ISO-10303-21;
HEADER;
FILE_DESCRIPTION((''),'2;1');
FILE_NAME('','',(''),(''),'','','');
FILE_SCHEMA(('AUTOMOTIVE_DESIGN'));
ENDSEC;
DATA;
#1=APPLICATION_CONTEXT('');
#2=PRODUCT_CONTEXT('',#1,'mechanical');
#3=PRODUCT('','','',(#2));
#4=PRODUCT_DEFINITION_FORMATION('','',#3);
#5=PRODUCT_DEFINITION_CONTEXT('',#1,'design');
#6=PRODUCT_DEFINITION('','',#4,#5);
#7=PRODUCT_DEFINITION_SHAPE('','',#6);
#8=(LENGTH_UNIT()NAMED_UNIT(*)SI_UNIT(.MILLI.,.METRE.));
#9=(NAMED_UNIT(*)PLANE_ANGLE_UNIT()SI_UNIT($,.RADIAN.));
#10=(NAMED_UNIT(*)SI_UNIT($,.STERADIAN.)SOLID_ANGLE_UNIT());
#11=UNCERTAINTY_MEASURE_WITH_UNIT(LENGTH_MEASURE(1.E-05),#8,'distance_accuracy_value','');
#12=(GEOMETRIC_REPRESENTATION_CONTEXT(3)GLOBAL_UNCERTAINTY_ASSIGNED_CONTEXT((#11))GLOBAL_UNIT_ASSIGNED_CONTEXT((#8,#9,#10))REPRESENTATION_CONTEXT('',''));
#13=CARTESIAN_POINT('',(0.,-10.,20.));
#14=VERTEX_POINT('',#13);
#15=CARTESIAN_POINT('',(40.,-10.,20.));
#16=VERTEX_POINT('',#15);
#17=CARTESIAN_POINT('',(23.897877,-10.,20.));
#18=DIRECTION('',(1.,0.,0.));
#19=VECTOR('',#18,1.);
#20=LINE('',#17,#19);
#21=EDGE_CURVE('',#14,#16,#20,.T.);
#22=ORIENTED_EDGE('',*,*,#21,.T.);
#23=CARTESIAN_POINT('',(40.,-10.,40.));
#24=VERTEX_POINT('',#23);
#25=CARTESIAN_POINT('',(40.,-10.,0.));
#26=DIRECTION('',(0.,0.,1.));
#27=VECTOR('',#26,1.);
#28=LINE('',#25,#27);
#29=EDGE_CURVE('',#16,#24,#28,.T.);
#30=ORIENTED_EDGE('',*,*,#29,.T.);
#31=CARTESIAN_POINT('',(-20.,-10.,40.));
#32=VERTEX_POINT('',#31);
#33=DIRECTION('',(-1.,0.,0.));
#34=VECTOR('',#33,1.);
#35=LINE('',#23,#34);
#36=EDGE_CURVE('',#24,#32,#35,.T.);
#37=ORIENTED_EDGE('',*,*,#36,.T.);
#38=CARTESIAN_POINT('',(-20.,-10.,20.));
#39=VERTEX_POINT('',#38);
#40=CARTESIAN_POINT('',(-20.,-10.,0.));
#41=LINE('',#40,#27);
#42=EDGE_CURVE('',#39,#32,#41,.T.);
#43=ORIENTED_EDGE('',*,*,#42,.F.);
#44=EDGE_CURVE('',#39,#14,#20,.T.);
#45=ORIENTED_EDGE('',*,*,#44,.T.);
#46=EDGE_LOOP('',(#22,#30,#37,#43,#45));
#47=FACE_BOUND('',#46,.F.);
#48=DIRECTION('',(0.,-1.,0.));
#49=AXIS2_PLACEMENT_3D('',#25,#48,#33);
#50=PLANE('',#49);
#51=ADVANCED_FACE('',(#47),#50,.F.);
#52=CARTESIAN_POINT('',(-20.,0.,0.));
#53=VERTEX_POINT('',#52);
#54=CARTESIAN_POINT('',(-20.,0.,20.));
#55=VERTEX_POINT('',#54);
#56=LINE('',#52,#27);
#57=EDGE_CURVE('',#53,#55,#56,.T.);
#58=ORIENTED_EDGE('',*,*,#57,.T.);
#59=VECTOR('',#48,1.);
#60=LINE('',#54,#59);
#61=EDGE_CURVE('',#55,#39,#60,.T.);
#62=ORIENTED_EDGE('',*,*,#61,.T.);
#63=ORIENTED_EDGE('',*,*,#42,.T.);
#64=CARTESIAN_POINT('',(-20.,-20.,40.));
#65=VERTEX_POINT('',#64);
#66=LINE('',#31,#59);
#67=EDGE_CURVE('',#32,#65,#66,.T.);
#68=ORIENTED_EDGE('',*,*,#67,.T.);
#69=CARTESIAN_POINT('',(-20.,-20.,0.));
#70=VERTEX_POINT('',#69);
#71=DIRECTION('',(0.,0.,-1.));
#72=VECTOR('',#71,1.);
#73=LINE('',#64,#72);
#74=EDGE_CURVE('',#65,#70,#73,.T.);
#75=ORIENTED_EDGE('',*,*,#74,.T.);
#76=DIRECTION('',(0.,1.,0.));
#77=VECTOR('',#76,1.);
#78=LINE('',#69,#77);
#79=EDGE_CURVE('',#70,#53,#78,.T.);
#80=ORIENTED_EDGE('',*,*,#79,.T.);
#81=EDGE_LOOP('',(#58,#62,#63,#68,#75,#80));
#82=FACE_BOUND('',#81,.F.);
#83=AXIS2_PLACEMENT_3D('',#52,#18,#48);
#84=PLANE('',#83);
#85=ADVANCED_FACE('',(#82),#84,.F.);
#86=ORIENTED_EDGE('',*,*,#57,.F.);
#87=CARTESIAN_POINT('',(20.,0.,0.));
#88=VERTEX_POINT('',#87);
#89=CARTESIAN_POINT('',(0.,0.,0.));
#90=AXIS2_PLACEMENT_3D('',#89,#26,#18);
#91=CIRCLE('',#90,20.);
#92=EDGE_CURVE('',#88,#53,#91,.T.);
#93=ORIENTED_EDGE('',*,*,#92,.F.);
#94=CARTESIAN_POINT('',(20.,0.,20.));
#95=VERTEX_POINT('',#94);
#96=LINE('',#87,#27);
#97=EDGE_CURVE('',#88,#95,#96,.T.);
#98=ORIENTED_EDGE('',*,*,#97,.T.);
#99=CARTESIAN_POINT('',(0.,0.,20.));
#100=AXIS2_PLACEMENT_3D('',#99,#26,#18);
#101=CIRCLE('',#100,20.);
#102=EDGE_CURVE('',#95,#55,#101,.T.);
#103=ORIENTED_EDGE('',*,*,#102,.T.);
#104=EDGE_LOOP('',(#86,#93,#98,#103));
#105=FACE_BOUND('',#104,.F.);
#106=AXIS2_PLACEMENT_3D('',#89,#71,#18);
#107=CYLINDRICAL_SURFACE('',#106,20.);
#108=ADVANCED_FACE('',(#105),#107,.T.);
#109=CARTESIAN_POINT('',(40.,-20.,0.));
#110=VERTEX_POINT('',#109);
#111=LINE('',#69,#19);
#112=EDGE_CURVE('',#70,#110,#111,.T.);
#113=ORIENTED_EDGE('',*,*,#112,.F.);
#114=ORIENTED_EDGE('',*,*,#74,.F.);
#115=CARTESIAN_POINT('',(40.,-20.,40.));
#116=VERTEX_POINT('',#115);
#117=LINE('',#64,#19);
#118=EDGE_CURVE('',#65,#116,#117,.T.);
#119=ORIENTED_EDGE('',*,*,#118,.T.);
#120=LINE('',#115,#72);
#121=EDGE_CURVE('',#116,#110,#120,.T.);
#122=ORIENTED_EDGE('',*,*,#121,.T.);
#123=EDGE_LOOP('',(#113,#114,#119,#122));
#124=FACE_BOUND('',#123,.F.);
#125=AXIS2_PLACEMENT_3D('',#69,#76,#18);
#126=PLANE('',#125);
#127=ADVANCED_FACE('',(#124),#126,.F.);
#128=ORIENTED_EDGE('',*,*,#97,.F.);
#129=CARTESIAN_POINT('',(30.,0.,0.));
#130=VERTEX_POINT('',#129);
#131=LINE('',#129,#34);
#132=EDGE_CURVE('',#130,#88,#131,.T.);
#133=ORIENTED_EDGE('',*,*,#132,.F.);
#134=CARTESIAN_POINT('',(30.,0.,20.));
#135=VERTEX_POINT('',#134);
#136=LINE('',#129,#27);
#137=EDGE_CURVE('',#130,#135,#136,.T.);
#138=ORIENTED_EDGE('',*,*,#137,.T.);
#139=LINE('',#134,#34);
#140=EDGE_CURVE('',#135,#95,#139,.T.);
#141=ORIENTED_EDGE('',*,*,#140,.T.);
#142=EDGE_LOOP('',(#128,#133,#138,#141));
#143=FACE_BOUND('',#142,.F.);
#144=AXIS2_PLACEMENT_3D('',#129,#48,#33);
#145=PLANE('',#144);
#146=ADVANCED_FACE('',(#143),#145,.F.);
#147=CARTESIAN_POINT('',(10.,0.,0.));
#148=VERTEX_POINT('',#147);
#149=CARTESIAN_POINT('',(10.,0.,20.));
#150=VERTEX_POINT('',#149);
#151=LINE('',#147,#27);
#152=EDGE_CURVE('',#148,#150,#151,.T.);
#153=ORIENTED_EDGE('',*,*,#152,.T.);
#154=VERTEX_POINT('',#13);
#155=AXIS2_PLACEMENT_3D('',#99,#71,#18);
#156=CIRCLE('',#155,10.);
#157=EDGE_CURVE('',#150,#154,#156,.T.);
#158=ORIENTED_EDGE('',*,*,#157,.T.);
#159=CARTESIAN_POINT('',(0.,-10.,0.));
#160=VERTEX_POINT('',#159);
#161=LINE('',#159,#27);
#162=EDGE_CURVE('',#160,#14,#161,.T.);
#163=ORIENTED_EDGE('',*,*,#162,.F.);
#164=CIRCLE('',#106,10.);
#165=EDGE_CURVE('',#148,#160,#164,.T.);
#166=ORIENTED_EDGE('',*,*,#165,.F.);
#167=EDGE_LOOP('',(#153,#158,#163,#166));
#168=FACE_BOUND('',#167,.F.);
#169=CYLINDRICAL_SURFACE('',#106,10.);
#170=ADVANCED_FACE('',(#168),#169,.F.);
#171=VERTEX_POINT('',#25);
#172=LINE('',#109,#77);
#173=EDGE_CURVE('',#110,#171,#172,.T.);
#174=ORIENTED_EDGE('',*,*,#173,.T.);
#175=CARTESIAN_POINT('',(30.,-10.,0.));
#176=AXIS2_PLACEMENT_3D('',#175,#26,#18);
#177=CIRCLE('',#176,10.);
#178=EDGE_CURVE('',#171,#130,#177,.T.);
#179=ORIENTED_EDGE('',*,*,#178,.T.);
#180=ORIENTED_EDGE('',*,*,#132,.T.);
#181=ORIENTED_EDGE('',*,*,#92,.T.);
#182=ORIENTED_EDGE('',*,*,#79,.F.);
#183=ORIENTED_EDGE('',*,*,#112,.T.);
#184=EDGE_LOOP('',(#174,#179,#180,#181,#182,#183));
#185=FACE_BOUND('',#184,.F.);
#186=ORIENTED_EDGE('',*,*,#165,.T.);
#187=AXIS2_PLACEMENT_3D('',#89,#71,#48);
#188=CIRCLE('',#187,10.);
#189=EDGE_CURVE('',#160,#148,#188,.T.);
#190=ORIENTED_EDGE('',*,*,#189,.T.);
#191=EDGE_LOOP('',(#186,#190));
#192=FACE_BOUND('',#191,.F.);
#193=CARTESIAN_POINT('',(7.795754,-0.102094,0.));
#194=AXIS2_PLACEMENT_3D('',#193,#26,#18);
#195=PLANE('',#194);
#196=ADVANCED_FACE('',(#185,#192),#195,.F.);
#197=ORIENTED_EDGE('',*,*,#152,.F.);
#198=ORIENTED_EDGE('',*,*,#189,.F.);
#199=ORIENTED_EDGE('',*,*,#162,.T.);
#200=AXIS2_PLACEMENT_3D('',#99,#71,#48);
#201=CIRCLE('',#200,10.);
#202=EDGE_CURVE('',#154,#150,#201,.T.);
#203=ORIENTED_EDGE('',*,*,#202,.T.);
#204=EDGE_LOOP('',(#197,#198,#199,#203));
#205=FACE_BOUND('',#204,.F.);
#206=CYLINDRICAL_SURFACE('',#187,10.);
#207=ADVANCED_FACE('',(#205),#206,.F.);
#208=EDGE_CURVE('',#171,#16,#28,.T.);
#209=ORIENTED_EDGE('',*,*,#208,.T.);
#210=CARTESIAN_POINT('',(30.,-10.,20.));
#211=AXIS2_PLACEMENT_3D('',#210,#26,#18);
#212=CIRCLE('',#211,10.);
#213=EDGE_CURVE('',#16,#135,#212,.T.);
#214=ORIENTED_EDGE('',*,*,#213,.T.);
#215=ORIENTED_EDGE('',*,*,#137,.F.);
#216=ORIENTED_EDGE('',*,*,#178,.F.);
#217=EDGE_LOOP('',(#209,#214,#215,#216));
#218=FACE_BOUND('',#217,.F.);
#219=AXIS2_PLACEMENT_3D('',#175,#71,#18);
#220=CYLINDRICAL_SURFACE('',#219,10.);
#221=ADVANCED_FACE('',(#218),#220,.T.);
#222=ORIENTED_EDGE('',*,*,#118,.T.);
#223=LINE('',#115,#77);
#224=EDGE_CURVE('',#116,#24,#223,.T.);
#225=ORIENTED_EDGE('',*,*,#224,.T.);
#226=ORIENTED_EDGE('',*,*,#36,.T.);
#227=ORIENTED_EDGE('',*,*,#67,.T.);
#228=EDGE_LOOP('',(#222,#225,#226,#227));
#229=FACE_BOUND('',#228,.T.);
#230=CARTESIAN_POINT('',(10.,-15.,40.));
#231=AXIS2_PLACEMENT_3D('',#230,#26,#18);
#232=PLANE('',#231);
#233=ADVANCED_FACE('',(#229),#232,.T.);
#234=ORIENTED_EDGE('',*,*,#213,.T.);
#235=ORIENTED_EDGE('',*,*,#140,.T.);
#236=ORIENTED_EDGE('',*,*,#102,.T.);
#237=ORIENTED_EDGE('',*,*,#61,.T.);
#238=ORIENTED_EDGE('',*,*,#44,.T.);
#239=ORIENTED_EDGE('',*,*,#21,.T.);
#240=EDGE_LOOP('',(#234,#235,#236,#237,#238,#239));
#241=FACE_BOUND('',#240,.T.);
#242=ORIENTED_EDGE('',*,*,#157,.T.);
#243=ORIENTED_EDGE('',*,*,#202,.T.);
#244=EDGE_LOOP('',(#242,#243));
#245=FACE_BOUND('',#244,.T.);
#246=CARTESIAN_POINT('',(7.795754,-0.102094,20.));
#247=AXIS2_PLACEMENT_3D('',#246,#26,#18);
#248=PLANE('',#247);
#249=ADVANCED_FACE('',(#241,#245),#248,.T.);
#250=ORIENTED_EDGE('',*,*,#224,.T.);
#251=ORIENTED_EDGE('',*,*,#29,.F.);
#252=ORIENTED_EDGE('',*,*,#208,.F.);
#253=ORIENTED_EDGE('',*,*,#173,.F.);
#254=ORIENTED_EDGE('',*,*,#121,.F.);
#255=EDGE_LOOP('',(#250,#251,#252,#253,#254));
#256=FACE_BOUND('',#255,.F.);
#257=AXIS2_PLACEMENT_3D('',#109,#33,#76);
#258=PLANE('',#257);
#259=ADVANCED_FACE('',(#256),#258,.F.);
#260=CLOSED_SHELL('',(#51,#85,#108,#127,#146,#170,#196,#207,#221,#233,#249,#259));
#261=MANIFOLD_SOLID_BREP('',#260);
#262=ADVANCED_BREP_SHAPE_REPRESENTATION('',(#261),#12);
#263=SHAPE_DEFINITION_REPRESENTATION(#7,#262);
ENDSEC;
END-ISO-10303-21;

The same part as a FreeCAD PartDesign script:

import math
import FreeCAD as App
import Part
import Sketcher
from FreeCAD import Vector

doc = App.newDocument("Part")
body = doc.addObject("PartDesign::Body", "Body")

sketch1 = body.newObject("Sketcher::SketchObject", "Sketch")
sketch1.AttachmentSupport = (doc.getObject("XY_Plane"), [""])
sketch1.MapMode = "FlatFace"
sketch1.addGeometry(Part.LineSegment(Vector(30, 0, 0), Vector(20, 0, 0)), False)
sketch1.addGeometry(Part.ArcOfCircle(Part.Circle(Vector(0, 0, 0), Vector(0, 0, 1), 20), math.radians(0), math.radians(180)), False)
sketch1.addGeometry(Part.LineSegment(Vector(-20, 0, 0), Vector(-20, -20, 0)), False)
sketch1.addGeometry(Part.LineSegment(Vector(-20, -20, 0), Vector(40, -20, 0)), False)
sketch1.addGeometry(Part.LineSegment(Vector(40, -20, 0), Vector(40, -10, 0)), False)
sketch1.addGeometry(Part.ArcOfCircle(Part.Circle(Vector(30, -10, 0), Vector(0, 0, 1), 10), math.radians(0), math.radians(90)), False)
sketch1.addGeometry(Part.ArcOfCircle(Part.Circle(Vector(0, 0, 0), Vector(0, 0, 1), 10), math.radians(-90), math.radians(0)), False)
sketch1.addGeometry(Part.ArcOfCircle(Part.Circle(Vector(0, 0, 0), Vector(0, 0, 1), 10), math.radians(0), math.radians(270)), False)
sketch1.addConstraint(Sketcher.Constraint("Coincident", 0, 2, 1, 1))
sketch1.addConstraint(Sketcher.Constraint("Tangent", 1, 2, 2, 1))
sketch1.addConstraint(Sketcher.Constraint("Coincident", 2, 2, 3, 1))
sketch1.addConstraint(Sketcher.Constraint("Coincident", 3, 2, 4, 1))
sketch1.addConstraint(Sketcher.Constraint("Tangent", 4, 2, 5, 1))
sketch1.addConstraint(Sketcher.Constraint("Tangent", 5, 2, 0, 1))
sketch1.addConstraint(Sketcher.Constraint("Tangent", 6, 1, 7, 2))
sketch1.addConstraint(Sketcher.Constraint("Coincident", 7, 1, 6, 2))
sketch1.addConstraint(Sketcher.Constraint("Horizontal", 0))
sketch1.addConstraint(Sketcher.Constraint("Vertical", 2))
sketch1.addConstraint(Sketcher.Constraint("Horizontal", 3))
sketch1.addConstraint(Sketcher.Constraint("Vertical", 4))
sketch1.addConstraint(Sketcher.Constraint("Coincident", 1, 3, -1, 1))
sketch1.addConstraint(Sketcher.Constraint("Coincident", 6, 3, -1, 1))
sketch1.addConstraint(Sketcher.Constraint("Equal", 5, 6))
sketch1.addConstraint(Sketcher.Constraint("PointOnObject", 0, 2, -1))
sketch1.addConstraint(Sketcher.Constraint("PointOnObject", 6, 1, -2))
sketch1.addConstraint(Sketcher.Constraint("PointOnObject", 7, 1, -1))
sketch1.addConstraint(Sketcher.Constraint("Equal", 0, 4))
sketch1.addConstraint(Sketcher.Constraint("Radius", 1, 20.0))
sketch1.addConstraint(Sketcher.Constraint("Radius", 5, 10.0))
sketch1.addConstraint(Sketcher.Constraint("DistanceX", 0, 2, 0, 1, 10.0))
pad1 = body.newObject("PartDesign::Pad", "Pad")
pad1.Profile = sketch1
pad1.Length = 20

sketch2 = body.newObject("Sketcher::SketchObject", "Sketch001")
sketch2.AttachmentSupport = (doc.getObject("XY_Plane"), [""])
sketch2.MapMode = "FlatFace"
sketch2.addGeometry(Part.LineSegment(Vector(-20, -10, 0), Vector(-20, -20, 0)), False)
sketch2.addGeometry(Part.LineSegment(Vector(-20, -20, 0), Vector(40, -20, 0)), False)
sketch2.addGeometry(Part.LineSegment(Vector(40, -20, 0), Vector(40, -10, 0)), False)
sketch2.addGeometry(Part.LineSegment(Vector(40, -10, 0), Vector(-20, -10, 0)), False)
sketch2.addConstraint(Sketcher.Constraint("Coincident", 0, 2, 1, 1))
sketch2.addConstraint(Sketcher.Constraint("Coincident", 1, 2, 2, 1))
sketch2.addConstraint(Sketcher.Constraint("Coincident", 2, 2, 3, 1))
sketch2.addConstraint(Sketcher.Constraint("Coincident", 3, 2, 0, 1))
sketch2.addConstraint(Sketcher.Constraint("Vertical", 0))
sketch2.addConstraint(Sketcher.Constraint("Horizontal", 1))
sketch2.addConstraint(Sketcher.Constraint("Vertical", 2))
sketch2.addConstraint(Sketcher.Constraint("Horizontal", 3))
sketch2.addConstraint(Sketcher.Constraint("DistanceX", 1, 1, 1, 2, 60.0))
sketch2.addConstraint(Sketcher.Constraint("DistanceY", 0, 2, 0, 1, 10.0))
sketch2.addConstraint(Sketcher.Constraint("DistanceX", 0, 2, -1, 1, 20.0))
sketch2.addConstraint(Sketcher.Constraint("DistanceY", 0, 2, -1, 1, 20.0))
pad2 = body.newObject("PartDesign::Pad", "Pad001")
pad2.Profile = sketch2
pad2.Length = 40

doc.recompute()
